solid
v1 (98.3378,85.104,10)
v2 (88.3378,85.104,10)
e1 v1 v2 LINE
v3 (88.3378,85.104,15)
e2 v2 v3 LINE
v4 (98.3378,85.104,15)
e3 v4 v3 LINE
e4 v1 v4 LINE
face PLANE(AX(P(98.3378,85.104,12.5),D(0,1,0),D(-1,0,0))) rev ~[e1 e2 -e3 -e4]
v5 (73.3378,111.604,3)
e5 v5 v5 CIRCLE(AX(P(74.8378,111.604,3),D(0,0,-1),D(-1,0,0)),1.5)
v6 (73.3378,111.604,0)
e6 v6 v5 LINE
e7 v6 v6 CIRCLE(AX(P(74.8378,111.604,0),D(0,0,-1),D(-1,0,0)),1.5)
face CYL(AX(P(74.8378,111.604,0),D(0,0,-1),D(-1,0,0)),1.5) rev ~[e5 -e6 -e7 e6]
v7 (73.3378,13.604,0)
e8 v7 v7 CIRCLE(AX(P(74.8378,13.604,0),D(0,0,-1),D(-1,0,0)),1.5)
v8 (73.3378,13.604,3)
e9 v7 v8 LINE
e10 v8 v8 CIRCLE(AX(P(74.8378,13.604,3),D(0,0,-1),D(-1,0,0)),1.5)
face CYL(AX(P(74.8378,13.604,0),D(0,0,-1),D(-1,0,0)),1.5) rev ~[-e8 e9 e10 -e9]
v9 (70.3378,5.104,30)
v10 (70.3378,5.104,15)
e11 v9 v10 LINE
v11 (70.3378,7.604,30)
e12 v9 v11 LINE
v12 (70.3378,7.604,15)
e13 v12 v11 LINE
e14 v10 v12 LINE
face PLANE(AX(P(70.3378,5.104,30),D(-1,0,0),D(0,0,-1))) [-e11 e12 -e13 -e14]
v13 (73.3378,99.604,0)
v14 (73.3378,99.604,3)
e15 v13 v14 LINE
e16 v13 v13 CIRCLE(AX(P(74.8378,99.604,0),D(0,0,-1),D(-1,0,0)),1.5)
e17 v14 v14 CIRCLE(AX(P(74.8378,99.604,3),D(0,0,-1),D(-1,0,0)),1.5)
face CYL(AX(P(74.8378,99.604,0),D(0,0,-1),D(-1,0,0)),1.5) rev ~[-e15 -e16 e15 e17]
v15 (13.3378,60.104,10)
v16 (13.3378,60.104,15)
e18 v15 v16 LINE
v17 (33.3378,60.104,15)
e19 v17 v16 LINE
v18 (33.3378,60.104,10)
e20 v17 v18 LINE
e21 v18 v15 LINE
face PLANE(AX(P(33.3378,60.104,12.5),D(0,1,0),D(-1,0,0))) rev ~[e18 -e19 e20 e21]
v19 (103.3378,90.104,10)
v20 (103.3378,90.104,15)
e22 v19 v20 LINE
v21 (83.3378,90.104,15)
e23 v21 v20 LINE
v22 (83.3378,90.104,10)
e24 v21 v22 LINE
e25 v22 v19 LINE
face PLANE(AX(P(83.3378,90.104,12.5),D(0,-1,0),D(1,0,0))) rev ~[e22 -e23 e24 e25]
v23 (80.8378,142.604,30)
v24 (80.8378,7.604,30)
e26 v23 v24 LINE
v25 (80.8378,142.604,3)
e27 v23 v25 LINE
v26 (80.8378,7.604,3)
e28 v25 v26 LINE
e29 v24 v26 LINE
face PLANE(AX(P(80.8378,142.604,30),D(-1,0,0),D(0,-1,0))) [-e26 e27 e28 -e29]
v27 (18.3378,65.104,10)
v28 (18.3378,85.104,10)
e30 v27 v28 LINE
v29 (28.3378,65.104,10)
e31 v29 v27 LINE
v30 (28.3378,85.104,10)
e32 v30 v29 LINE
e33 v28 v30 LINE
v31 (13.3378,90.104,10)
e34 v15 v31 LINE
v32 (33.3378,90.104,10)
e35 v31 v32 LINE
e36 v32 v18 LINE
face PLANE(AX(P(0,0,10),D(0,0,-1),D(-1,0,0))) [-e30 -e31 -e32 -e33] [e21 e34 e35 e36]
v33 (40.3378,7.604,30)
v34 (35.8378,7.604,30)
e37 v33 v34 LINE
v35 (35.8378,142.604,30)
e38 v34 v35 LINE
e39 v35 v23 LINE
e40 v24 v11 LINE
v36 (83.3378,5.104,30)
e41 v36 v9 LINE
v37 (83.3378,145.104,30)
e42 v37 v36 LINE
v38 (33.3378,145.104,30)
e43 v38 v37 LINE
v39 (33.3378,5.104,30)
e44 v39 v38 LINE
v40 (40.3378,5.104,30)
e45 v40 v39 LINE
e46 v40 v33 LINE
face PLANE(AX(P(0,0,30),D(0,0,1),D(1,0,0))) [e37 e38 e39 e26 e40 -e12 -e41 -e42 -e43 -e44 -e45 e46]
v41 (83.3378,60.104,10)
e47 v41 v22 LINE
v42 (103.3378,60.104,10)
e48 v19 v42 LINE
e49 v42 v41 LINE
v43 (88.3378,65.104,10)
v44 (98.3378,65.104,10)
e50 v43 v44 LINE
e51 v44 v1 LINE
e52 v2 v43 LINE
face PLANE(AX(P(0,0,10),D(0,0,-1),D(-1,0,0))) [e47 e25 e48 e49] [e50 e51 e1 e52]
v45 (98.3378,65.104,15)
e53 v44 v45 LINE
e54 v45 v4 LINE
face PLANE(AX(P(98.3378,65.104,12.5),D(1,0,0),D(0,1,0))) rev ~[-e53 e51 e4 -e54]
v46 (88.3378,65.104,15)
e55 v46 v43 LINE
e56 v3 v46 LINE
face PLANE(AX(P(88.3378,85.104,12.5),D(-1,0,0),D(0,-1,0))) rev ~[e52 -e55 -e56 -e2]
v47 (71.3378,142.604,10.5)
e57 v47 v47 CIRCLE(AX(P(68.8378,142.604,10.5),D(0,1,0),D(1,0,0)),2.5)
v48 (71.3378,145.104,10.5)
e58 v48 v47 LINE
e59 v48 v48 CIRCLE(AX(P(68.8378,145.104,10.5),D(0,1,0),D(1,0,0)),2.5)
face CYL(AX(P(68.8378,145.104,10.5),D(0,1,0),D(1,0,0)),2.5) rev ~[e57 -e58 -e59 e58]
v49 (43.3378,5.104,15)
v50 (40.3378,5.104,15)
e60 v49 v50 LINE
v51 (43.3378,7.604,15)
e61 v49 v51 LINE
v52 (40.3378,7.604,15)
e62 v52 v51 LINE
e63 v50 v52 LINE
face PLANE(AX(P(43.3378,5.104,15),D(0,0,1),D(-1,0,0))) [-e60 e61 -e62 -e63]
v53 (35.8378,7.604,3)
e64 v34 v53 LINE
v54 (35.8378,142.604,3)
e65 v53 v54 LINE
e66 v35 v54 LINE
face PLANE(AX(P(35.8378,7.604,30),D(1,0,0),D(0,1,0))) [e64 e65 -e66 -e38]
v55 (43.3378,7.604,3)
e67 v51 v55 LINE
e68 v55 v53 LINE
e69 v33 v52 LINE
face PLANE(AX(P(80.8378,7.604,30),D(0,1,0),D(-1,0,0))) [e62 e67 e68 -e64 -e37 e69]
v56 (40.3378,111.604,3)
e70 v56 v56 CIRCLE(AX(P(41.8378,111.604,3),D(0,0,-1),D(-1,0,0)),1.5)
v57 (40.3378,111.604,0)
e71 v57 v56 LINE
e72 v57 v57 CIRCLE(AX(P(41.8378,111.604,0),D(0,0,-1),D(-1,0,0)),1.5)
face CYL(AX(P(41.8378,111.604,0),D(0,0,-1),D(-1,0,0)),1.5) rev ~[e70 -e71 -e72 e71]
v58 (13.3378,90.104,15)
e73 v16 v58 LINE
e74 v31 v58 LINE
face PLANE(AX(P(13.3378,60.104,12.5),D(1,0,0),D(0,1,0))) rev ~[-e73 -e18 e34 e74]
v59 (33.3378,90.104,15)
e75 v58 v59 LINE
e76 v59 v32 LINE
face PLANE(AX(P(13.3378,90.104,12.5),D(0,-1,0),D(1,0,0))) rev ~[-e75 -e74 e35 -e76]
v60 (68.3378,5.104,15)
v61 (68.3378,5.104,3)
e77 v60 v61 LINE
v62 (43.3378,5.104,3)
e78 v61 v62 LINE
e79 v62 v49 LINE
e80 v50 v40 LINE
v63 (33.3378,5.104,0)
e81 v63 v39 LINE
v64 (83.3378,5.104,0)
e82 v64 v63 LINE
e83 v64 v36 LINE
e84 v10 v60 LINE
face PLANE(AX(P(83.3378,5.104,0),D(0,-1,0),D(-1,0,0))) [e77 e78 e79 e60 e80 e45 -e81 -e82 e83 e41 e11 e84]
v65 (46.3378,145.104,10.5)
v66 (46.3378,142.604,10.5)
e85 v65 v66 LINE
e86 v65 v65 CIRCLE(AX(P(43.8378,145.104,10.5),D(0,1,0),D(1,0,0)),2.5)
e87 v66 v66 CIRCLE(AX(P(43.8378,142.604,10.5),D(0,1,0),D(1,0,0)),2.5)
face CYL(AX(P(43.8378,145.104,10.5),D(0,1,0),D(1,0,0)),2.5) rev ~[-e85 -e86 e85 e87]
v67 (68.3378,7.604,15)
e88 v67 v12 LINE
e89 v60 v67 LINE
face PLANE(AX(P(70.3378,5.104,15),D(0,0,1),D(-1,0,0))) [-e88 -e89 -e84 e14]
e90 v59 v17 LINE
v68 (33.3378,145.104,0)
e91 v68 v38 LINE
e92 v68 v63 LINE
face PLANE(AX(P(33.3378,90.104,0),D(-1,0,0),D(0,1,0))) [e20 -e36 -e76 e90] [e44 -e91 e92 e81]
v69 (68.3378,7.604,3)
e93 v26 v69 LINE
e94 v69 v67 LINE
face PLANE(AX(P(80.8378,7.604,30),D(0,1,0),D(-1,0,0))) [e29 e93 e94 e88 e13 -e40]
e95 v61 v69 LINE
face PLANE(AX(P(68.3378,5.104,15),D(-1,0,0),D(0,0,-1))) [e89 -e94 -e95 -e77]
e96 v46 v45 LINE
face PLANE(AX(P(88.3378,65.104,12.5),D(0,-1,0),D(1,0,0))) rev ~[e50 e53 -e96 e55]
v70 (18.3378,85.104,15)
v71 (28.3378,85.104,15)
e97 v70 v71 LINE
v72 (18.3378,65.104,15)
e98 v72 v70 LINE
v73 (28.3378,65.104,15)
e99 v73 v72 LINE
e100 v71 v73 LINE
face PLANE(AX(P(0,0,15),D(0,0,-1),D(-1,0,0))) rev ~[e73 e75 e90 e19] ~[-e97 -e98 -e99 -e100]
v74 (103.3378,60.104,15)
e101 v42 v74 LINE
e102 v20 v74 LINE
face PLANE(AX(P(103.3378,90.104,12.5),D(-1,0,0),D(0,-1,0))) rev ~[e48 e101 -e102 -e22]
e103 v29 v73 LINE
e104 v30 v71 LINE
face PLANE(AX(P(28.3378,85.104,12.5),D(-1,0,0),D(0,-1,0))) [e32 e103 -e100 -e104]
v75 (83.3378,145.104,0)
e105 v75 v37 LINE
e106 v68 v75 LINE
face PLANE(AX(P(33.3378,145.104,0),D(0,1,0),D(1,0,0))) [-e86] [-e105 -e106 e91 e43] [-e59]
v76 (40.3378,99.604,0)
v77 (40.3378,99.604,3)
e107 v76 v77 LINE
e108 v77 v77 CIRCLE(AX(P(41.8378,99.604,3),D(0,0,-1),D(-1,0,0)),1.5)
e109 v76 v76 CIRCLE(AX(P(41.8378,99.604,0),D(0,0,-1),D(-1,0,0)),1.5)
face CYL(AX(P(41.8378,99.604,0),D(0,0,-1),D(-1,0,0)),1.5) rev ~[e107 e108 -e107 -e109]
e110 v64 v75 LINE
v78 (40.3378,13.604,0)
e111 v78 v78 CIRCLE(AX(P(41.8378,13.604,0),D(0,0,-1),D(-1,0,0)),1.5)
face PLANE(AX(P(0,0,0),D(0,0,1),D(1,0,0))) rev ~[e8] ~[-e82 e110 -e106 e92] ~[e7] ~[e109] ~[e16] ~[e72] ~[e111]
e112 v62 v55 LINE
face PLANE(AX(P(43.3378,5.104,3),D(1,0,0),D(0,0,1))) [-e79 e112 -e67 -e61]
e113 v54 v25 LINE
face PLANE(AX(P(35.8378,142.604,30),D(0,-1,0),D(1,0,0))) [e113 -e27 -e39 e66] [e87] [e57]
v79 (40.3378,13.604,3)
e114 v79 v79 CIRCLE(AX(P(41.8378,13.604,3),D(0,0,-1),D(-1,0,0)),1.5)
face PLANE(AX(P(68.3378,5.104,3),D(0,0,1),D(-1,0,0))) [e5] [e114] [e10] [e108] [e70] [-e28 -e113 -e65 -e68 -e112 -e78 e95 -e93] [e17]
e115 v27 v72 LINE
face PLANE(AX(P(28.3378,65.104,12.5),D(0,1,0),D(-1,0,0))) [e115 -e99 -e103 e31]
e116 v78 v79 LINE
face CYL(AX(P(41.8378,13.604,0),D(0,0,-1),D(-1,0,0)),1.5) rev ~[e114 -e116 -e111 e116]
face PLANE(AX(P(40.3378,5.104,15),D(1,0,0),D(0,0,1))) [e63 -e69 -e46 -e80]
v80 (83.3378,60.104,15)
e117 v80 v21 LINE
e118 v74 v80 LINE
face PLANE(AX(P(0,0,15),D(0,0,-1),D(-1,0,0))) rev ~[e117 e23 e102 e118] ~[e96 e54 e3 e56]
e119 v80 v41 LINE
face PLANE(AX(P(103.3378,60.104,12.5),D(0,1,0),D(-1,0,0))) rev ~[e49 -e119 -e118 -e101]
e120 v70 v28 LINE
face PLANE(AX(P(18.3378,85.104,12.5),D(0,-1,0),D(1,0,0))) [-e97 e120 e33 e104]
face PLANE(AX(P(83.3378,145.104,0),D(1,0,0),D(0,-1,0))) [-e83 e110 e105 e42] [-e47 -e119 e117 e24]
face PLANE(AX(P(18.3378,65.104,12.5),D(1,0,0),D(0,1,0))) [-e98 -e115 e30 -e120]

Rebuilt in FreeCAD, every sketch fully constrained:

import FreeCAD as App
import Part
import Sketcher
from FreeCAD import Vector
Q = App.Units.Quantity

doc = App.newDocument("Part")
body = doc.addObject("PartDesign::Body", "Body")

# Sketch on XY plane
sketch1 = body.newObject("Sketcher::SketchObject", "Sketch")
sketch1.AttachmentSupport = (doc.getObject("XY_Plane"), [""])
sketch1.MapMode = "FlatFace"
sketch1.addGeometry([
    Part.LineSegment(Vector(83, 145, 0), Vector(33, 145, 0)),
    Part.LineSegment(Vector(33, 145, 0), Vector(33, 5, 0)),
    Part.LineSegment(Vector(33, 5, 0), Vector(83, 5, 0)),
    Part.LineSegment(Vector(83, 5, 0), Vector(83, 145, 0)),
], False)
sketch1.addConstraint([
    Sketcher.Constraint("Coincident", 0, 2, 1, 1),
    Sketcher.Constraint("Coincident", 1, 2, 2, 1),
    Sketcher.Constraint("Coincident", 2, 2, 3, 1),
    Sketcher.Constraint("Coincident", 3, 2, 0, 1),
    Sketcher.Constraint("Horizontal", 0),
    Sketcher.Constraint("Vertical", 1),
    Sketcher.Constraint("Horizontal", 2),
    Sketcher.Constraint("Vertical", 3),
    Sketcher.Constraint("DistanceX", 0, 2, 0, 1, Q("50 mm")),
    Sketcher.Constraint("DistanceY", 1, 2, 1, 1, Q("140 mm")),
    Sketcher.Constraint("DistanceY", -1, 1, 0, 2, Q("145.104 mm")),
    Sketcher.Constraint("DistanceX", -1, 1, 0, 2, Q("33.3378 mm")),
])
pad1 = body.newObject("PartDesign::Pad", "Pad")
pad1.Profile = sketch1
pad1.Length = 30

# Sketch on XY plane
sketch2 = body.newObject("Sketcher::SketchObject", "Sketch001")
sketch2.AttachmentSupport = (doc.getObject("XY_Plane"), [""])
sketch2.MapMode = "FlatFace"
sketch2.AttachmentOffset = App.Placement(Vector(0, 0, 30), App.Rotation())
sketch2.addGeometry([
    Part.LineSegment(Vector(81, 143, 0), Vector(36, 143, 0)),
    Part.LineSegment(Vector(36, 143, 0), Vector(36, 8, 0)),
    Part.LineSegment(Vector(36, 8, 0), Vector(81, 8, 0)),
    Part.LineSegment(Vector(81, 8, 0), Vector(81, 143, 0)),
], False)
sketch2.addConstraint([
    Sketcher.Constraint("Coincident", 0, 2, 1, 1),
    Sketcher.Constraint("Coincident", 1, 2, 2, 1),
    Sketcher.Constraint("Coincident", 2, 2, 3, 1),
    Sketcher.Constraint("Coincident", 3, 2, 0, 1),
    Sketcher.Constraint("Horizontal", 0),
    Sketcher.Constraint("Vertical", 1),
    Sketcher.Constraint("Horizontal", 2),
    Sketcher.Constraint("Vertical", 3),
    Sketcher.Constraint("DistanceX", 0, 2, 0, 1, Q("45 mm")),
    Sketcher.Constraint("DistanceY", 1, 2, 1, 1, Q("135 mm")),
    Sketcher.Constraint("DistanceY", -1, 1, 0, 2, Q("142.604 mm")),
    Sketcher.Constraint("DistanceX", -1, 1, 0, 2, Q("35.8378 mm")),
])
pocket1 = body.newObject("PartDesign::Pocket", "Pocket")
pocket1.Profile = sketch2
pocket1.Length = 27

# Sketch on XZ plane
sketch3 = body.newObject("Sketcher::SketchObject", "Sketch002")
sketch3.AttachmentSupport = (doc.getObject("XZ_Plane"), [""])
sketch3.MapMode = "FlatFace"
sketch3.AttachmentOffset = App.Placement(Vector(0, 0, -5.104), App.Rotation())
sketch3.addGeometry([
    Part.LineSegment(Vector(70.3, 30, 0), Vector(40.3, 30, 0)),  # 0
    Part.LineSegment(Vector(40.3, 30, 0), Vector(40.3, 15, 0)),  # 1
    Part.LineSegment(Vector(40.3, 15, 0), Vector(43.3, 15, 0)),  # 2
    Part.LineSegment(Vector(43.3, 15, 0), Vector(43.3, 3, 0)),  # 3
    Part.LineSegment(Vector(43.3, 3, 0), Vector(68.3, 3, 0)),  # 4
    Part.LineSegment(Vector(68.3, 3, 0), Vector(68.3, 15, 0)),  # 5
    Part.LineSegment(Vector(68.3, 15, 0), Vector(70.3, 15, 0)),  # 6
    Part.LineSegment(Vector(70.3, 15, 0), Vector(70.3, 30, 0)),  # 7
], False)
sketch3.addConstraint([
    Sketcher.Constraint("Coincident", 0, 2, 1, 1),
    Sketcher.Constraint("Coincident", 1, 2, 2, 1),
    Sketcher.Constraint("Coincident", 2, 2, 3, 1),
    Sketcher.Constraint("Coincident", 3, 2, 4, 1),
    Sketcher.Constraint("Coincident", 4, 2, 5, 1),
    Sketcher.Constraint("Coincident", 5, 2, 6, 1),
    Sketcher.Constraint("Coincident", 6, 2, 7, 1),
    Sketcher.Constraint("Coincident", 7, 2, 0, 1),
    Sketcher.Constraint("Horizontal", 0),
    Sketcher.Constraint("Vertical", 1),
    Sketcher.Constraint("Horizontal", 2),
    Sketcher.Constraint("Vertical", 3),
    Sketcher.Constraint("Horizontal", 4),
    Sketcher.Constraint("Vertical", 5),
    Sketcher.Constraint("Horizontal", 6),
    Sketcher.Constraint("Vertical", 7),
    Sketcher.Constraint("Horizontal", 2, 2, 5, 2),
    Sketcher.Constraint("DistanceX", 0, 2, 0, 1, Q("30 mm")),
    Sketcher.Constraint("DistanceX", 2, 1, 2, 2, Q("3 mm")),
    Sketcher.Constraint("DistanceX", 4, 1, 4, 2, Q("25 mm")),
    Sketcher.Constraint("DistanceY", 1, 2, 1, 1, Q("15 mm")),
    Sketcher.Constraint("DistanceY", -1, 1, 0, 2, Q("30 mm")),
    Sketcher.Constraint("DistanceY", -1, 1, 3, 2, Q("3 mm")),
    Sketcher.Constraint("DistanceX", -1, 1, 0, 2, Q("40.3378 mm")),
])
pocket2 = body.newObject("PartDesign::Pocket", "Pocket001")
pocket2.Profile = sketch3
pocket2.Length = 27

# Sketch on XY plane
sketch4 = body.newObject("Sketcher::SketchObject", "Sketch003")
sketch4.AttachmentSupport = (doc.getObject("XY_Plane"), [""])
sketch4.MapMode = "FlatFace"
sketch4.addGeometry([
    Part.Circle(Vector(74.8, 13.6, 0), Vector(0, 0, 1), 1.5),  # 0
    Part.Circle(Vector(41.8, 13.6, 0), Vector(0, 0, 1), 1.5),  # 1
    Part.Circle(Vector(41.8, 99.6, 0), Vector(0, 0, 1), 1.5),  # 2
    Part.Circle(Vector(74.8, 99.6, 0), Vector(0, 0, 1), 1.5),  # 3
    Part.Circle(Vector(41.8, 111.6, 0), Vector(0, 0, 1), 1.5),  # 4
    Part.Circle(Vector(74.8, 111.6, 0), Vector(0, 0, 1), 1.5),  # 5
], False)
sketch4.addConstraint([
    Sketcher.Constraint("Equal", 0, 1),
    Sketcher.Constraint("Equal", 1, 2),
    Sketcher.Constraint("Equal", 2, 3),
    Sketcher.Constraint("Equal", 3, 4),
    Sketcher.Constraint("Equal", 4, 5),
    Sketcher.Constraint("Horizontal", 0, 3, 1, 3),
    Sketcher.Constraint("Horizontal", 2, 3, 3, 3),
    Sketcher.Constraint("Horizontal", 4, 3, 5, 3),
    Sketcher.Constraint("Vertical", 1, 3, 2, 3),
    Sketcher.Constraint("Vertical", 0, 3, 3, 3),
    Sketcher.Constraint("Vertical", 2, 3, 4, 3),
    Sketcher.Constraint("Vertical", 3, 3, 5, 3),
    Sketcher.Constraint("Diameter", 0, Q("3 mm")),
    Sketcher.Constraint("DistanceY", 2, 3, 4, 3, Q("12 mm")),
    Sketcher.Constraint("DistanceX", 1, 3, 0, 3, Q("33 mm")),
    Sketcher.Constraint("DistanceY", 1, 3, 2, 3, Q("86 mm")),
    Sketcher.Constraint("DistanceY", -1, 1, 0, 3, Q("13.604 mm")),
    Sketcher.Constraint("DistanceX", -1, 1, 0, 3, Q("74.8378 mm")),
])
pocket3 = body.newObject("PartDesign::Pocket", "Pocket002")
pocket3.Profile = sketch4
pocket3.Length = 27
pocket3.Reversed = True

# Sketch on XZ plane
sketch5 = body.newObject("Sketcher::SketchObject", "Sketch004")
sketch5.AttachmentSupport = (doc.getObject("XZ_Plane"), [""])
sketch5.MapMode = "FlatFace"
sketch5.AttachmentOffset = App.Placement(Vector(0, 0, -145.104), App.Rotation())
sketch5.addGeometry([
    Part.Circle(Vector(68.8, 10.5, 0), Vector(0, 0, 1), 2.5),
    Part.Circle(Vector(43.8, 10.5, 0), Vector(0, 0, 1), 2.5),
], False)
sketch5.addConstraint([
    Sketcher.Constraint("Equal", 0, 1),
    Sketcher.Constraint("Horizontal", 0, 3, 1, 3),
    Sketcher.Constraint("Diameter", 0, Q("5 mm")),
    Sketcher.Constraint("DistanceX", 1, 3, 0, 3, Q("25 mm")),
    Sketcher.Constraint("DistanceY", -1, 1, 0, 3, Q("10.5 mm")),
    Sketcher.Constraint("DistanceX", -1, 1, 0, 3, Q("68.8378 mm")),
])
pocket4 = body.newObject("PartDesign::Pocket", "Pocket003")
pocket4.Profile = sketch5
pocket4.Length = 27
pocket4.Reversed = True

# Sketch on XY plane
sketch6 = body.newObject("Sketcher::SketchObject", "Sketch005")
sketch6.AttachmentSupport = (doc.getObject("XY_Plane"), [""])
sketch6.MapMode = "FlatFace"
sketch6.AttachmentOffset = App.Placement(Vector(0, 0, 12.5), App.Rotation())
sketch6.addGeometry([
    Part.LineSegment(Vector(103, 60, 0), Vector(83, 60, 0)),  # 0
    Part.LineSegment(Vector(83, 60, 0), Vector(83, 90, 0)),  # 1
    Part.LineSegment(Vector(83, 90, 0), Vector(103, 90, 0)),  # 2
    Part.LineSegment(Vector(103, 90, 0), Vector(103, 60, 0)),  # 3
    Part.LineSegment(Vector(88, 85, 0), Vector(88, 65, 0)),  # 4
    Part.LineSegment(Vector(88, 65, 0), Vector(98, 65, 0)),  # 5
    Part.LineSegment(Vector(98, 65, 0), Vector(98, 85, 0)),  # 6
    Part.LineSegment(Vector(98, 85, 0), Vector(88, 85, 0)),  # 7
    Part.LineSegment(Vector(13, 90, 0), Vector(33, 90, 0)),  # 8
    Part.LineSegment(Vector(33, 90, 0), Vector(33, 60, 0)),  # 9
    Part.LineSegment(Vector(33, 60, 0), Vector(13, 60, 0)),  # 10
    Part.LineSegment(Vector(13, 60, 0), Vector(13, 90, 0)),  # 11
    Part.LineSegment(Vector(28, 85, 0), Vector(18, 85, 0)),  # 12
    Part.LineSegment(Vector(18, 85, 0), Vector(18, 65, 0)),  # 13
    Part.LineSegment(Vector(18, 65, 0), Vector(28, 65, 0)),  # 14
    Part.LineSegment(Vector(28, 65, 0), Vector(28, 85, 0)),  # 15
], False)
sketch6.addConstraint([
    Sketcher.Constraint("Coincident", 0, 2, 1, 1),
    Sketcher.Constraint("Coincident", 1, 2, 2, 1),
    Sketcher.Constraint("Coincident", 2, 2, 3, 1),
    Sketcher.Constraint("Coincident", 3, 2, 0, 1),
    Sketcher.Constraint("Coincident", 4, 2, 5, 1),
    Sketcher.Constraint("Coincident", 5, 2, 6, 1),
    Sketcher.Constraint("Coincident", 6, 2, 7, 1),
    Sketcher.Constraint("Coincident", 7, 2, 4, 1),
    Sketcher.Constraint("Coincident", 8, 2, 9, 1),
    Sketcher.Constraint("Coincident", 9, 2, 10, 1),
    Sketcher.Constraint("Coincident", 10, 2, 11, 1),
    Sketcher.Constraint("Coincident", 11, 2, 8, 1),
    Sketcher.Constraint("Coincident", 12, 2, 13, 1),
    Sketcher.Constraint("Coincident", 13, 2, 14, 1),
    Sketcher.Constraint("Coincident", 14, 2, 15, 1),
    Sketcher.Constraint("Coincident", 15, 2, 12, 1),
    Sketcher.Constraint("Horizontal", 0),
    Sketcher.Constraint("Vertical", 1),
    Sketcher.Constraint("Horizontal", 2),
    Sketcher.Constraint("Vertical", 3),
    Sketcher.Constraint("Vertical", 4),
    Sketcher.Constraint("Horizontal", 5),
    Sketcher.Constraint("Vertical", 6),
    Sketcher.Constraint("Horizontal", 7),
    Sketcher.Constraint("Horizontal", 8),
    Sketcher.Constraint("Vertical", 9),
    Sketcher.Constraint("Horizontal", 10),
    Sketcher.Constraint("Vertical", 11),
    Sketcher.Constraint("Horizontal", 12),
    Sketcher.Constraint("Vertical", 13),
    Sketcher.Constraint("Horizontal", 14),
    Sketcher.Constraint("Vertical", 15),
    Sketcher.Constraint("Horizontal", 2, 2, 8, 2),
    Sketcher.Constraint("Horizontal", 3, 2, 9, 2),
    Sketcher.Constraint("Horizontal", 7, 2, 12, 2),
    Sketcher.Constraint("Horizontal", 5, 2, 13, 2),
    Sketcher.Constraint("Equal", 2, 8),
    Sketcher.Constraint("Equal", 7, 12),
    Sketcher.Constraint("Equal", 10, 4),
    Sketcher.Constraint("DistanceX", 0, 2, 0, 1, Q("20 mm")),
    Sketcher.Constraint("DistanceY", 1, 1, 1, 2, Q("30 mm")),
    Sketcher.Constraint("DistanceX", 0, 2, 4, 2, Q("5 mm")),
    Sketcher.Constraint("DistanceY", 0, 2, 4, 2, Q("5 mm")),
    Sketcher.Constraint("DistanceX", 5, 2, 3, 2, Q("5 mm")),
    Sketcher.Constraint("DistanceX", 8, 2, 7, 2, Q("55 mm")),
    Sketcher.Constraint("DistanceX", 11, 2, 12, 2, Q("5 mm")),
    Sketcher.Constraint("DistanceY", -1, 1, 0, 2, Q("60.104 mm")),
    Sketcher.Constraint("DistanceX", -1, 1, 0, 2, Q("83.3378 mm")),
])
pad2 = body.newObject("PartDesign::Pad", "Pad001")
pad2.Profile = sketch6
pad2.Length = 5
pad2.Midplane = True

doc.recompute()
